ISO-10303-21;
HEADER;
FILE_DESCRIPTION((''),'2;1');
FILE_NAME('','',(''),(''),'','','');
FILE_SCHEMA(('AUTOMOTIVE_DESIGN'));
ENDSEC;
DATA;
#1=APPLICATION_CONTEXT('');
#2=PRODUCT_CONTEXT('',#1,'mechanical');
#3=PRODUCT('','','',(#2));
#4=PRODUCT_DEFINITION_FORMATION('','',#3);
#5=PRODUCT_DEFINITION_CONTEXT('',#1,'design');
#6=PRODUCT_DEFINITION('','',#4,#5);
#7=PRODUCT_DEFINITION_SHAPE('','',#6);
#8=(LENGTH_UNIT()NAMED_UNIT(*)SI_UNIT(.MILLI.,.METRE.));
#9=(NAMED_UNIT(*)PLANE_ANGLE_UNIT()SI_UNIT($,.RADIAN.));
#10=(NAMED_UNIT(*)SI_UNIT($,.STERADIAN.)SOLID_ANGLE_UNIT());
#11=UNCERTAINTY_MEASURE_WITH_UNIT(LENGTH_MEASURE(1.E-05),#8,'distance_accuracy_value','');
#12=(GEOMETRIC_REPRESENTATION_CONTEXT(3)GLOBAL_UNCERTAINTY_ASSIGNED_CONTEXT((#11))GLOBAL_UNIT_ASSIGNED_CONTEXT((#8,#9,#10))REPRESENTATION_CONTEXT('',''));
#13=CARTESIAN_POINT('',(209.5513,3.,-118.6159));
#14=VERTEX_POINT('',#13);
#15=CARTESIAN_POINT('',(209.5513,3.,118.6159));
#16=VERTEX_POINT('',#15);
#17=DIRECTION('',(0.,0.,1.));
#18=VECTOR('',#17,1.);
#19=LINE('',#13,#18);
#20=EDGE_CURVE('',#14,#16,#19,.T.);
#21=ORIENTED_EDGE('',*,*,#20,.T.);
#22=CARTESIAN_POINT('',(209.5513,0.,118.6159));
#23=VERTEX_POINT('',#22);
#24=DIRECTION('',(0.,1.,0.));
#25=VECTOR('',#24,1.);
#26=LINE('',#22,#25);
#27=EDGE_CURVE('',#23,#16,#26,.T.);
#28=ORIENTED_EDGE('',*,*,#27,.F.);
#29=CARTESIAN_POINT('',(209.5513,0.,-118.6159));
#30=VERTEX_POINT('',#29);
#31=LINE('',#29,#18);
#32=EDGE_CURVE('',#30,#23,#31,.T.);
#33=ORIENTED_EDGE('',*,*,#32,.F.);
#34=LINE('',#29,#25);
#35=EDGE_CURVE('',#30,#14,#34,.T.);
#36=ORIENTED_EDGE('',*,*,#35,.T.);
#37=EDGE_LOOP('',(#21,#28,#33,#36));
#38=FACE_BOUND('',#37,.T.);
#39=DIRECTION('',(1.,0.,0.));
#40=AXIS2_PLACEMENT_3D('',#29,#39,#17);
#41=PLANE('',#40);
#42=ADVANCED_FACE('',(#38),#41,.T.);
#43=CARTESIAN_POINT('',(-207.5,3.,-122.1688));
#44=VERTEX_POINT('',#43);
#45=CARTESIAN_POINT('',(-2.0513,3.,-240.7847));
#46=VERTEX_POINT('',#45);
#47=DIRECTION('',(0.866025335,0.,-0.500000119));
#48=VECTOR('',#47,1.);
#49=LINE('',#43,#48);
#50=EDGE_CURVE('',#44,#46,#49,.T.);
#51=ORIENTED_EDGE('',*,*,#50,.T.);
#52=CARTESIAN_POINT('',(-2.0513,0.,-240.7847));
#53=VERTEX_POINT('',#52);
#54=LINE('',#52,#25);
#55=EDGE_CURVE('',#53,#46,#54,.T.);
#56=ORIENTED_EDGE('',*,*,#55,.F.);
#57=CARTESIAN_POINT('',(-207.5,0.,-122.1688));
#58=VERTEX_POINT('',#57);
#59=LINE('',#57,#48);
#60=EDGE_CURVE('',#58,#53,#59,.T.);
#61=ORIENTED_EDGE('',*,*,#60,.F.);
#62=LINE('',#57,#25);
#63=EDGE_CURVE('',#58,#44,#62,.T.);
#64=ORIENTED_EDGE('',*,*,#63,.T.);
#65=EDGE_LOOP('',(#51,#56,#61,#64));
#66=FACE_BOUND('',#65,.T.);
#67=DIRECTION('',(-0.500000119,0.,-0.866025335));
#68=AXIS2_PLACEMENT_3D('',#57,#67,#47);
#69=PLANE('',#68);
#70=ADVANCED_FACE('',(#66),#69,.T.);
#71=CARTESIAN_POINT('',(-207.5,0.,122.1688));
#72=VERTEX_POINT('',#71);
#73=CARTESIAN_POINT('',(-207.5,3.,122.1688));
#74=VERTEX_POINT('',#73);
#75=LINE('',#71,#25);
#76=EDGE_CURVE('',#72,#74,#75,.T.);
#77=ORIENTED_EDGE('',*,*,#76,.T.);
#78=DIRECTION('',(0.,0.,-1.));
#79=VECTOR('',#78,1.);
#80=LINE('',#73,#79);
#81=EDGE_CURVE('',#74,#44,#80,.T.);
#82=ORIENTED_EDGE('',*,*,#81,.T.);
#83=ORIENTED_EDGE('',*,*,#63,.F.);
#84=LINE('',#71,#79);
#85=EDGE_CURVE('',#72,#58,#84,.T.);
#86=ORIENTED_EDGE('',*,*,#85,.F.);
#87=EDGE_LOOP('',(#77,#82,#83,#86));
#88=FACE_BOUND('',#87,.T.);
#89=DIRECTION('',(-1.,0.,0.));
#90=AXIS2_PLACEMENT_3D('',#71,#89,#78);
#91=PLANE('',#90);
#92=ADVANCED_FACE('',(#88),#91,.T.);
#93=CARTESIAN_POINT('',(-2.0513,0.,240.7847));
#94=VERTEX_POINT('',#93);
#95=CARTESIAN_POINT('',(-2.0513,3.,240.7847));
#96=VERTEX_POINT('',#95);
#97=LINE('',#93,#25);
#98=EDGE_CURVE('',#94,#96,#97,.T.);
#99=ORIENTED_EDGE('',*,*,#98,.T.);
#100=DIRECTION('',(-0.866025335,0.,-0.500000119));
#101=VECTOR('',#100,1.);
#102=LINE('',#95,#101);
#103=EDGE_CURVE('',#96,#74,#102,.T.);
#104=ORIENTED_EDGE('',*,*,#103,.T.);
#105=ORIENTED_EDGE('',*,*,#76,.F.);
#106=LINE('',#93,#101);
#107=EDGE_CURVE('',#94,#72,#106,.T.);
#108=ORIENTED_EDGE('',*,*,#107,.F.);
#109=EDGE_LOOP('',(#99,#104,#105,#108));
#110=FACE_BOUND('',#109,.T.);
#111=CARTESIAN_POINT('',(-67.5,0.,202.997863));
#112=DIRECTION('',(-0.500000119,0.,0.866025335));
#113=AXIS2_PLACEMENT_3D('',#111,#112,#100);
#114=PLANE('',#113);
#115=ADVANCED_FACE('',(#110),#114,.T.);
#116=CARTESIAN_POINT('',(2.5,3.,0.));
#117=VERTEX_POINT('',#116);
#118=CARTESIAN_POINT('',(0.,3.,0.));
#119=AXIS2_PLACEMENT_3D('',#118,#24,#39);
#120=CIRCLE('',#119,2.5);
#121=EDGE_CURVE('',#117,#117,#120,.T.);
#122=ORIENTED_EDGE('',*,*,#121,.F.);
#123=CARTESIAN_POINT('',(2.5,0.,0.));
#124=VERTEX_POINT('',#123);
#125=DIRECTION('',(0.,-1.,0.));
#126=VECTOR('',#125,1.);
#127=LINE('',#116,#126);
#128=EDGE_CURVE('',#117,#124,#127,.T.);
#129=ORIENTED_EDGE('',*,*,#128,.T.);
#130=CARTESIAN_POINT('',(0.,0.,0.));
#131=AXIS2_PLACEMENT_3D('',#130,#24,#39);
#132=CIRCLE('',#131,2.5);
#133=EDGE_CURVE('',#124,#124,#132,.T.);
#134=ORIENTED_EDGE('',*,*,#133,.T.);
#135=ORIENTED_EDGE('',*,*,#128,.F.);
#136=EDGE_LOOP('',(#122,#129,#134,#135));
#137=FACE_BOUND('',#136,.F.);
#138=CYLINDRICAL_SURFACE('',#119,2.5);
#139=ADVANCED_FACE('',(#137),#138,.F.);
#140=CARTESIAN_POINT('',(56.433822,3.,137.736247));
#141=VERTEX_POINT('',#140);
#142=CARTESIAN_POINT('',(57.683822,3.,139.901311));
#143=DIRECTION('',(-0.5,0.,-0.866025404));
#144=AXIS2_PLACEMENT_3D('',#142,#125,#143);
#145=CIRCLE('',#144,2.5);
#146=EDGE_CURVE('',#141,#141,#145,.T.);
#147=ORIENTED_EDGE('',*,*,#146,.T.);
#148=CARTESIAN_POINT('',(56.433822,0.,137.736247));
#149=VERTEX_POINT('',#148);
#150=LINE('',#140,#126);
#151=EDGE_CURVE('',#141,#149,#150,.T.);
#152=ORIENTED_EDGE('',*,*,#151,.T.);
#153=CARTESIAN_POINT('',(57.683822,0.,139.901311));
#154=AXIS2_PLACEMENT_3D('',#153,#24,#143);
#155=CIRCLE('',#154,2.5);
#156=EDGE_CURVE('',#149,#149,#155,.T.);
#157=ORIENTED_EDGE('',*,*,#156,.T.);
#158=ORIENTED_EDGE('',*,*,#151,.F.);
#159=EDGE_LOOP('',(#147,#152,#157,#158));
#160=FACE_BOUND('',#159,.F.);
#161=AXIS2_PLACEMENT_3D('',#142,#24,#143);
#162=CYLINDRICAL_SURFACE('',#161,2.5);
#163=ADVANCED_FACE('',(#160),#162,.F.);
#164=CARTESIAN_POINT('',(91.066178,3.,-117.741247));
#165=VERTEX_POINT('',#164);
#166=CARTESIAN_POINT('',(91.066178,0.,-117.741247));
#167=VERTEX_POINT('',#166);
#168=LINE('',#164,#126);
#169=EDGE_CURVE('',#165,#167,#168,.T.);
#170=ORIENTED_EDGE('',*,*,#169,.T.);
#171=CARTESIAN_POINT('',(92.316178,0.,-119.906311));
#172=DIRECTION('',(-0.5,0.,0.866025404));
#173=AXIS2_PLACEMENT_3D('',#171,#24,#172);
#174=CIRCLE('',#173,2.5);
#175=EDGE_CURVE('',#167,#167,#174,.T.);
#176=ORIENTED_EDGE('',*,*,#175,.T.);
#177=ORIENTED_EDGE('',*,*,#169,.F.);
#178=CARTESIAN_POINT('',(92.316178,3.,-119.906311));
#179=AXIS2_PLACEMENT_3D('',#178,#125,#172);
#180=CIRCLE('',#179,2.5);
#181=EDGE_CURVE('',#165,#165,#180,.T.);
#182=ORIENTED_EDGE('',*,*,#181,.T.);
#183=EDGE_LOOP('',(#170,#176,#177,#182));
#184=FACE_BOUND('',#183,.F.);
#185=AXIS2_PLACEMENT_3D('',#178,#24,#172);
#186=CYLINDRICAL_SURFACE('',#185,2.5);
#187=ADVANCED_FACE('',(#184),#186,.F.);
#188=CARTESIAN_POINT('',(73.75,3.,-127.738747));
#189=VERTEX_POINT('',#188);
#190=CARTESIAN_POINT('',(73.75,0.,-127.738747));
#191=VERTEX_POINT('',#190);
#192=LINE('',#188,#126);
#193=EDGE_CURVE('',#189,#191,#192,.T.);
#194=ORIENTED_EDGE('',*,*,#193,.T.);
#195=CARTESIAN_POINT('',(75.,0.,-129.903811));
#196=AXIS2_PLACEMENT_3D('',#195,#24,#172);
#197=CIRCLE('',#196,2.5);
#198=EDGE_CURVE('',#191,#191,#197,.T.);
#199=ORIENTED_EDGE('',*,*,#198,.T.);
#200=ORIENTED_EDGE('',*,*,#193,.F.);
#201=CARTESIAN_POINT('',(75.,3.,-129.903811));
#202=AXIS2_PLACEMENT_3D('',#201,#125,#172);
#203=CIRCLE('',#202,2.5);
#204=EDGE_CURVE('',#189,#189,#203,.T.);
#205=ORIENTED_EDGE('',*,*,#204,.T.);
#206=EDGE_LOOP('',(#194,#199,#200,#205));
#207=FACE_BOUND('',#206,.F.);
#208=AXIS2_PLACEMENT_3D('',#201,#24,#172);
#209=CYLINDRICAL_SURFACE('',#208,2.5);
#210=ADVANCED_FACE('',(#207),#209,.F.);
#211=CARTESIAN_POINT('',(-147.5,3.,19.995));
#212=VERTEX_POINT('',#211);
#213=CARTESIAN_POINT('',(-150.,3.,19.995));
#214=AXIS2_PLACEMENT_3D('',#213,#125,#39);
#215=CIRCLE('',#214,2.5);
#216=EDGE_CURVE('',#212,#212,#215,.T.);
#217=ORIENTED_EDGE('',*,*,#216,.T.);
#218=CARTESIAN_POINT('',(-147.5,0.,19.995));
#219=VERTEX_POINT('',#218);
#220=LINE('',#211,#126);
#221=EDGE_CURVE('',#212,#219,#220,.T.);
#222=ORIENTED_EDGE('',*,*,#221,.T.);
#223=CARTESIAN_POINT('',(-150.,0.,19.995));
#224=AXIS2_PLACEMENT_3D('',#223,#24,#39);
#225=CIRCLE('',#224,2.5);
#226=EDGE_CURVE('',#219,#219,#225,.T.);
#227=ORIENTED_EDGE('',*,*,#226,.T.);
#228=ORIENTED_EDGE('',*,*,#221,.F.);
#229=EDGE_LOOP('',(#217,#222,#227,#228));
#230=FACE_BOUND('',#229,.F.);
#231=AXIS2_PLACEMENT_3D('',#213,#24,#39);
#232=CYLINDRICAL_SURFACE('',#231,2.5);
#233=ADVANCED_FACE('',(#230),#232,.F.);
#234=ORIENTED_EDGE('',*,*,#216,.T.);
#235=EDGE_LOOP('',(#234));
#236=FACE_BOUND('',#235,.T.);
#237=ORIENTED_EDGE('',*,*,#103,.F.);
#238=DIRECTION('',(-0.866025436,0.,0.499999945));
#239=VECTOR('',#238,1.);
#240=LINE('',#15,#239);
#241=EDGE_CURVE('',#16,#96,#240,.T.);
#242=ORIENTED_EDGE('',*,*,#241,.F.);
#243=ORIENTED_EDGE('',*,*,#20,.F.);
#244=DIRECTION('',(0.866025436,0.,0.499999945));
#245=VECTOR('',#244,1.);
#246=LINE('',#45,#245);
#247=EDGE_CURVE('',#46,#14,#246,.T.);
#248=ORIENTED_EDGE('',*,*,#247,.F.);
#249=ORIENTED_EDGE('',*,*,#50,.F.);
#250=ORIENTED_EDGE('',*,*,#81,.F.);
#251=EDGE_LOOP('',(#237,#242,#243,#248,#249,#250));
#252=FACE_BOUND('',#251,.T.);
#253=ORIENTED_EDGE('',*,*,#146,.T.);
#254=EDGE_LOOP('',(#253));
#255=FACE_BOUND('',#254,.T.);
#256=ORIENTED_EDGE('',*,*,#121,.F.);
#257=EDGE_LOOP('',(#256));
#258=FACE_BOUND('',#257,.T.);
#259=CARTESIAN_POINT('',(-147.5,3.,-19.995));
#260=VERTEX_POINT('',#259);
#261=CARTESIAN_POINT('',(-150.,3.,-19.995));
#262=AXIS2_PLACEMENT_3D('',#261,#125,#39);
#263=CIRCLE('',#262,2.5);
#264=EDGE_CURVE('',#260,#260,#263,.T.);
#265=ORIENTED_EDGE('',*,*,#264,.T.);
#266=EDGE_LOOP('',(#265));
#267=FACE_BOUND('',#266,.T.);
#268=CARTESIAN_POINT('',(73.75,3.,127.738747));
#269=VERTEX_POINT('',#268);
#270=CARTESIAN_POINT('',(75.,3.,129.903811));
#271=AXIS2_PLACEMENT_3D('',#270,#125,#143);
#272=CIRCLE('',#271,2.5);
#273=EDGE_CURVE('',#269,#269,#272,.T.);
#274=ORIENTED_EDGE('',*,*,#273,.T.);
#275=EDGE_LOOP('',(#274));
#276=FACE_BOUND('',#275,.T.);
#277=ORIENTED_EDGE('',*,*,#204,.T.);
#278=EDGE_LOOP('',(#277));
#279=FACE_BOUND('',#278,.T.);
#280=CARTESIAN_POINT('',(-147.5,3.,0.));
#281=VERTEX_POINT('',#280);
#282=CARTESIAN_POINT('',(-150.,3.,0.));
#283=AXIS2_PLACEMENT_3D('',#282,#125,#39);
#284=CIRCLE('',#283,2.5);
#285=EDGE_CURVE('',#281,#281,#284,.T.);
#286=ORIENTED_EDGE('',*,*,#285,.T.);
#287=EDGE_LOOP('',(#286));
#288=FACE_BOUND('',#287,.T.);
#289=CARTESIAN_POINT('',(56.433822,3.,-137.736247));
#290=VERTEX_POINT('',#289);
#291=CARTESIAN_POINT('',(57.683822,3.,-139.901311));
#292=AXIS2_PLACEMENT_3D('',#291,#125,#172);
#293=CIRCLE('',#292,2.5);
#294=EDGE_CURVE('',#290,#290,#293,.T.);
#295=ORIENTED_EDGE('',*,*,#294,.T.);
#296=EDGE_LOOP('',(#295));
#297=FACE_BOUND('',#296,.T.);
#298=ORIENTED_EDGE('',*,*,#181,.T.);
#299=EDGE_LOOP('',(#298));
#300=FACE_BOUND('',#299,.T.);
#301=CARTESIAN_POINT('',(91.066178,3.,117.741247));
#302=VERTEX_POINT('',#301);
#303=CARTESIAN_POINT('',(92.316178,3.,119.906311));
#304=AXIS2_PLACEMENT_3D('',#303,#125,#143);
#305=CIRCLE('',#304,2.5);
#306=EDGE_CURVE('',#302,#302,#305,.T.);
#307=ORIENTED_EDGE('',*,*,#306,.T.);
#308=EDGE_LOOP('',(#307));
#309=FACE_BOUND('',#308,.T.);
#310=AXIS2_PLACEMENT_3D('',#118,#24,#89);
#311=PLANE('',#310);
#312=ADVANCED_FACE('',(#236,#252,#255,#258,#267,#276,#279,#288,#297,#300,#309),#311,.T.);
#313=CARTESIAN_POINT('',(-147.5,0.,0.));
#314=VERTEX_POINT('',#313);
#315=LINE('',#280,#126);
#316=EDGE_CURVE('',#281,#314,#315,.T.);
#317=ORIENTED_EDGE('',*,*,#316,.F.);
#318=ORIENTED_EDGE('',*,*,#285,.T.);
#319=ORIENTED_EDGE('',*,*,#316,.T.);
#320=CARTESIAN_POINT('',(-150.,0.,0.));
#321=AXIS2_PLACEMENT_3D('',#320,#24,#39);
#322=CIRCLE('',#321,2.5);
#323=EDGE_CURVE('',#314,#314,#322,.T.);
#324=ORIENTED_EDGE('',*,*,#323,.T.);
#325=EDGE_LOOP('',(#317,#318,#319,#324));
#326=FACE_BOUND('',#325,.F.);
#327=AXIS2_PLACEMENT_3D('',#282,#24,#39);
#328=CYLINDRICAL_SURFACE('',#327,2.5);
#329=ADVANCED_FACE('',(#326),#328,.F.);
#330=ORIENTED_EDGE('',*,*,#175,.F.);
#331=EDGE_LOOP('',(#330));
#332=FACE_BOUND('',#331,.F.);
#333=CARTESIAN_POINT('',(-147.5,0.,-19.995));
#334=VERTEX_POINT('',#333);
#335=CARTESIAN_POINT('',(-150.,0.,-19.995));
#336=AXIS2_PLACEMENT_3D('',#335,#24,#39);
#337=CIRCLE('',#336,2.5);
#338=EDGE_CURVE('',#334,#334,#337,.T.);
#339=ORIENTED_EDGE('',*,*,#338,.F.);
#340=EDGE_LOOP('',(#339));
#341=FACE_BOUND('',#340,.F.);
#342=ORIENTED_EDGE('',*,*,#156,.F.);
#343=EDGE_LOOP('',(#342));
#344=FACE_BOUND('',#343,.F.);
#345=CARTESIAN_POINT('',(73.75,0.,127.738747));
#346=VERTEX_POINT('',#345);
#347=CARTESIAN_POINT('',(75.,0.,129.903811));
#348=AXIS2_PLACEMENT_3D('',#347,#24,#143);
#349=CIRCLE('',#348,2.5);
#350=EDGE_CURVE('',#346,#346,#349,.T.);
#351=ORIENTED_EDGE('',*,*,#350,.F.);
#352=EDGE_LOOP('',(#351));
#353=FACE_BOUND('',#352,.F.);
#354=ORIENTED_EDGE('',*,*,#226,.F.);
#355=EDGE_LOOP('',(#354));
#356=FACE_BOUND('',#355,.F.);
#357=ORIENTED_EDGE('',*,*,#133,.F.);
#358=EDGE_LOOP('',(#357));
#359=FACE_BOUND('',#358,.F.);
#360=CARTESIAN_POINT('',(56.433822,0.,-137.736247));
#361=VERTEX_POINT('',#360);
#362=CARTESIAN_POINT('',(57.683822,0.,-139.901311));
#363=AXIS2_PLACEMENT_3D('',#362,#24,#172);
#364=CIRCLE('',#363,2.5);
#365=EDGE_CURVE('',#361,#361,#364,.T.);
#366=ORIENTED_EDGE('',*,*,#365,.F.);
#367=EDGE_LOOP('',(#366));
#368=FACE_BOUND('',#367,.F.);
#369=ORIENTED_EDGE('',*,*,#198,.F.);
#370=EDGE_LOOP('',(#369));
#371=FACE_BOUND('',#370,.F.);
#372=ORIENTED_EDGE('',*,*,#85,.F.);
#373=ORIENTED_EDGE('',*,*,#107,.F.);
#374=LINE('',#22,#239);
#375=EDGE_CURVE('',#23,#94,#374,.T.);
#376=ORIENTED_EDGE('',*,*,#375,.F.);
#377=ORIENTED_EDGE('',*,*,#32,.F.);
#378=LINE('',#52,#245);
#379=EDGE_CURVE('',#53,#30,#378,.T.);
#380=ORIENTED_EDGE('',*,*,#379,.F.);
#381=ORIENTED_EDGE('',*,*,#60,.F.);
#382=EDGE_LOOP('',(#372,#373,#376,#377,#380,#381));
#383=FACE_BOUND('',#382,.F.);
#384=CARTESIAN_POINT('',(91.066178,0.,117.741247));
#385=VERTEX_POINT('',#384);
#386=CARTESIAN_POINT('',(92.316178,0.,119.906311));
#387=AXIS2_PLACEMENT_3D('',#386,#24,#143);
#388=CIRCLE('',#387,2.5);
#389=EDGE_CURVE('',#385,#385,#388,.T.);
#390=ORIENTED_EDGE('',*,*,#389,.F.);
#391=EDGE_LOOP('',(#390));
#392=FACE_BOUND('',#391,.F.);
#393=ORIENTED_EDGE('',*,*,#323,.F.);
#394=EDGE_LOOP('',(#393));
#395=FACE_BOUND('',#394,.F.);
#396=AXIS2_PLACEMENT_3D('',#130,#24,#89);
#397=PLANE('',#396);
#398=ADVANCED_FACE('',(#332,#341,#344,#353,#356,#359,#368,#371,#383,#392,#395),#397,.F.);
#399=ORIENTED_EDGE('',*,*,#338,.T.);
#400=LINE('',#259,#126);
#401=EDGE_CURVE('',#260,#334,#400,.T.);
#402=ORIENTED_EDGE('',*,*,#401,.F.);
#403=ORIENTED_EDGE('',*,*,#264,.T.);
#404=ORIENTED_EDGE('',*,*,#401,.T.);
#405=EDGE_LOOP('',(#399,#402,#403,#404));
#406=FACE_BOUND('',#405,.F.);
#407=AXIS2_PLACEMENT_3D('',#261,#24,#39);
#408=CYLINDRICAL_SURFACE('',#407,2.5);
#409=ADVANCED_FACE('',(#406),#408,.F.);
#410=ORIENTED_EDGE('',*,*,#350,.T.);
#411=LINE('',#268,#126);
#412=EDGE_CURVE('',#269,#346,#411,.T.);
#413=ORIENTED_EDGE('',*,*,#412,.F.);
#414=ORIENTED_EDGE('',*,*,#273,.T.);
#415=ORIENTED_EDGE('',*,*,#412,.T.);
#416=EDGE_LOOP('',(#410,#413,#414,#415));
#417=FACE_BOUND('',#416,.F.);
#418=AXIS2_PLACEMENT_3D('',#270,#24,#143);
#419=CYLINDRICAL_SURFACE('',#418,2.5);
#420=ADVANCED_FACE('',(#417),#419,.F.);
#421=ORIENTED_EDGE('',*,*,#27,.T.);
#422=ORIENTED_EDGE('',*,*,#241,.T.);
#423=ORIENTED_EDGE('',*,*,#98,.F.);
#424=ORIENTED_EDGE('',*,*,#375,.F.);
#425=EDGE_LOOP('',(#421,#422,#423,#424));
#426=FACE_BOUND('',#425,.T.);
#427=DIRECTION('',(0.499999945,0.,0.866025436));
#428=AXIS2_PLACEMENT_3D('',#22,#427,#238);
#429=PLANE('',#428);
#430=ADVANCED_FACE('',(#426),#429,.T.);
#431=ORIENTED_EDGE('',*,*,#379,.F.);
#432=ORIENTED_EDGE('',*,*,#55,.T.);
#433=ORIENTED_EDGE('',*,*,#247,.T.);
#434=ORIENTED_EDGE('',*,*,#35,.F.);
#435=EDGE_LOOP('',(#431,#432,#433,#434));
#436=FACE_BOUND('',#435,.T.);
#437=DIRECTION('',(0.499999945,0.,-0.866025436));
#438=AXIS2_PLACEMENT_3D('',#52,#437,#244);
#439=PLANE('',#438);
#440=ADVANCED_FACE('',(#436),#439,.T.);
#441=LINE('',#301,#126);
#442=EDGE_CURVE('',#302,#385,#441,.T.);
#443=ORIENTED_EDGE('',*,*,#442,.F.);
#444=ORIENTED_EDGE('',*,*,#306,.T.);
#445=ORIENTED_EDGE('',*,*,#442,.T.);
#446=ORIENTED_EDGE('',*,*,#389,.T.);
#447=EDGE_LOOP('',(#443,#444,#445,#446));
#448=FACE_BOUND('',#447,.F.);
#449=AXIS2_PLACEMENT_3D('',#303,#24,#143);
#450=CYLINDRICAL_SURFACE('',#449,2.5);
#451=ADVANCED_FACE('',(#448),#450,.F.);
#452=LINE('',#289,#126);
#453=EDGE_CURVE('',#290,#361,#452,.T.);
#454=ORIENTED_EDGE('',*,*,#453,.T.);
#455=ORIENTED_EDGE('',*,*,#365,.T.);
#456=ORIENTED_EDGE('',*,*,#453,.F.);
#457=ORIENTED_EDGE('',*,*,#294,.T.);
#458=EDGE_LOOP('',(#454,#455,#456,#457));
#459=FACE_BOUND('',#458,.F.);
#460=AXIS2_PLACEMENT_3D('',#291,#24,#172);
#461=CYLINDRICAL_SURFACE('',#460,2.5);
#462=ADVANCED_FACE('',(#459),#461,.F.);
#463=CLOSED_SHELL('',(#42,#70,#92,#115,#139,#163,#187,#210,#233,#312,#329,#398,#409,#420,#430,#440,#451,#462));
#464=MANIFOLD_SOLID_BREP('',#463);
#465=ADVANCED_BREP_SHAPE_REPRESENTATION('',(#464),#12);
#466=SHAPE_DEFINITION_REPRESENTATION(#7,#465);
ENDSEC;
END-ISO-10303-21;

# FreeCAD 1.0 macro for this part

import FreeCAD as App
import Part
import Sketcher
from FreeCAD import Vector
Q = App.Units.Quantity


def add_polygon(sketch, points):
    """Adds a closed chain of lines whose ends are joined by coincident constraints."""
    first, n = sketch.GeometryCount, len(points)
    for a, b in zip(points, points[1:] + points[:1]):
        sketch.addGeometry(Part.LineSegment(App.Vector(*a, 0), App.Vector(*b, 0)), False)
    for i in range(n):
        sketch.addConstraint(Sketcher.Constraint("Coincident", first + i, 2, first + (i + 1) % n, 1))

doc = App.newDocument("Part")
params = doc.addObject("Spreadsheet::Sheet", "Params")
for row, (alias, value) in enumerate([
    ("pad1_length", "3 mm"),
    ("sketch2_diameter", "5 mm"),
    ("pocket1_length", "3 mm"),
], start=1):
    params.set(f"A{row}", alias)
    params.set(f"B{row}", "=" + value)
    params.setAlias(f"B{row}", alias)

body = doc.addObject("PartDesign::Body", "Body")

# Sketch on XZ plane
sketch1 = body.newObject("Sketcher::SketchObject", "Sketch")
sketch1.AttachmentSupport = (doc.getObject("XZ_Plane"), [""])
sketch1.MapMode = "FlatFace"
add_polygon(sketch1, [(-208, 122), (-2, 241), (210, 119), (210, -119), (-2, -241), (-208, -122)])  # lines 0-5
sketch1.addConstraint([
    Sketcher.Constraint("Vertical", 2),
    Sketcher.Constraint("Vertical", 5),
    Sketcher.Constraint("Symmetric", 0, 2, 3, 2, -1),
    Sketcher.Constraint("Parallel", 0, 3),
    Sketcher.Constraint("Parallel", 1, 4),
    Sketcher.Constraint("Equal", 1, 3),
    Sketcher.Constraint("Angle", 0, Q("30 deg")),
    Sketcher.Constraint("DistanceX", 4, 2, -1, 1, 207.5),
    Sketcher.Constraint("DistanceY", 2, 2, 2, 1, 237.2318),
    Sketcher.Constraint("DistanceY", 5, 1, 5, 2, 244.3376),
    Sketcher.Constraint("DistanceY", 3, 2, 4, 2, 118.616),
])
pad1 = body.newObject("PartDesign::Pad", "Pad")
pad1.Profile = sketch1
pad1.setExpression("Length", "Params.pad1_length")
pad1.Reversed = True

# Sketch on XZ plane
sketch2 = body.newObject("Sketcher::SketchObject", "Sketch001")
sketch2.AttachmentSupport = (doc.getObject("XZ_Plane"), [""])
sketch2.MapMode = "FlatFace"
sketch2.AttachmentOffset = App.Placement(Vector(0, 0, -3), App.Rotation())
sketch2.addGeometry([
    Part.Circle(Vector(-150, 0, 0), Vector(0, 0, 1), 2.5),
    Part.Circle(Vector(0, 0, 0), Vector(0, 0, 1), 2.5),
    Part.Circle(Vector(-150, 20, 0), Vector(0, 0, 1), 2.5),
    Part.Circle(Vector(-150, -20, 0), Vector(0, 0, 1), 2.5),
], False)
sketch2.addConstraint([
    Sketcher.Constraint("Coincident", 1, 3, -1, 1),
    Sketcher.Constraint("Equal", 0, 1),
    Sketcher.Constraint("Equal", 1, 2),
    Sketcher.Constraint("Equal", 2, 3),
    Sketcher.Constraint("Symmetric", 2, 3, 3, 3, -1),
    Sketcher.Constraint("PointOnObject", 0, 3, -1),
    Sketcher.Constraint("Vertical", 0, 3, 2, 3),
    Sketcher.Constraint("Diameter", 0, 5.0),
    Sketcher.Constraint("DistanceX", 0, 3, -1, 1, 150.0),
    Sketcher.Constraint("DistanceY", -1, 1, 2, 3, 19.995),
])
sketch2.setExpression("Constraints[7]", "Params.sketch2_diameter")
pocket1 = body.newObject("PartDesign::Pocket", "Pocket")
pocket1.Profile = sketch2
pocket1.setExpression("Length", "Params.pocket1_length")
pocket1.Reversed = True
doc.recompute()

polarpattern = body.newObject("PartDesign::PolarPattern", "PolarPattern")
polarpattern.Originals = [pocket1]
polarpattern.Axis = (doc.getObject("Y_Axis"), [""])
polarpattern.Angle = 360
polarpattern.Occurrences = 3
body.Tip = polarpattern

doc.recompute()
